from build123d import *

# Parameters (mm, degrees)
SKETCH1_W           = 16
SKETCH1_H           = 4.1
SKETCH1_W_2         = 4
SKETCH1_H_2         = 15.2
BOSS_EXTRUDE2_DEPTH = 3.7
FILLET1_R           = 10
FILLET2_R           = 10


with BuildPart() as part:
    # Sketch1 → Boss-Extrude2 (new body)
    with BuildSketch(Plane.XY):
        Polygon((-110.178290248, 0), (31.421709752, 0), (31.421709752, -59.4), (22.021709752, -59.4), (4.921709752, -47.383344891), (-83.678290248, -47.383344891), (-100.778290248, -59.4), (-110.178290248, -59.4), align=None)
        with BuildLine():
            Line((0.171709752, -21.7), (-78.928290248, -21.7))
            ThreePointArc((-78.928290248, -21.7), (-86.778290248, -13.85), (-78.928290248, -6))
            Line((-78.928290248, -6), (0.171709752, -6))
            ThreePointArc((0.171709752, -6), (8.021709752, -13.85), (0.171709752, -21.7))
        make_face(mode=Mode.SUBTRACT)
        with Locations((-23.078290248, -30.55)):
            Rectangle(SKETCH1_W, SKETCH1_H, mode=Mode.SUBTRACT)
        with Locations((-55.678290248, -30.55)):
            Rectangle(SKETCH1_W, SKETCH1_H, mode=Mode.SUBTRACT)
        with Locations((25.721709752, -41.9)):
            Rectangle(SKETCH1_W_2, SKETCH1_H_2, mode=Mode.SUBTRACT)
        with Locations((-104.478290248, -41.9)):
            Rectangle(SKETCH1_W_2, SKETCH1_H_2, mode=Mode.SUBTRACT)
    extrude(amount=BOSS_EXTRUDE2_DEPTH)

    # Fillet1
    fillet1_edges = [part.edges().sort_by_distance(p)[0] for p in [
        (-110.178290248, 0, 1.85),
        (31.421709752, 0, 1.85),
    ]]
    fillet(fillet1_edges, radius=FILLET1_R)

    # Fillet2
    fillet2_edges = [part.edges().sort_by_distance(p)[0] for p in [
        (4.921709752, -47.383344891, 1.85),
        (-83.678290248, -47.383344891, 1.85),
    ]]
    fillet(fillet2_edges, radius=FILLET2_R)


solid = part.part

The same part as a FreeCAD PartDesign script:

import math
import FreeCAD as App
import Part
import Sketcher


def edges_at(feature, points):
    """Names of the edges that pass closest to the given points."""
    edges = feature.Shape.Edges
    near = lambda p: min(range(len(edges)), key=lambda i: edges[i].distToShape(Part.Vertex(*p))[0])
    return sorted({f"Edge{near(p) + 1}" for p in points})

doc = App.newDocument("Part")
params = doc.addObject("Spreadsheet::Sheet", "Params")
for row, (alias, value) in enumerate([
    ("sketch1_width", "4 mm"),
    ("sketch1_width2", "16 mm"),
    ("sketch1_radius", "7.85 mm"),
    ("sketch1_width3", "141.6 mm"),
    ("sketch1_width4", "9.4 mm"),
    ("pad1_length", "3.7 mm"),
    ("fillet_radius", "10 mm"),
    ("fillet2_radius", "10 mm"),
], start=1):
    params.set(f"A{row}", alias)
    params.set(f"B{row}", "=" + value)
    params.setAlias(f"B{row}", alias)

body = doc.addObject("PartDesign::Body", "Body")

# Sketch on XY plane
sketch1 = body.newObject("Sketcher::SketchObject", "Sketch")
sketch1.AttachmentSupport = (doc.getObject("XY_Plane"), [""])
sketch1.MapMode = "FlatFace"
sketch1.addGeometry([
    Part.LineSegment(App.Vector(31.42171, 0, 0), App.Vector(-110.17829, 0, 0)),  # 0
    Part.LineSegment(App.Vector(-110.17829, 0, 0), App.Vector(-110.17829, -59.4, 0)),  # 1
    Part.LineSegment(App.Vector(-110.17829, -59.4, 0), App.Vector(-100.77829, -59.4, 0)),  # 2
    Part.LineSegment(App.Vector(-100.77829, -59.4, 0), App.Vector(-83.67829, -47.383345, 0)),  # 3
    Part.LineSegment(App.Vector(-83.67829, -47.383345, 0), App.Vector(4.92171, -47.383345, 0)),  # 4
    Part.LineSegment(App.Vector(4.92171, -47.383345, 0), App.Vector(22.02171, -59.4, 0)),  # 5
    Part.LineSegment(App.Vector(22.02171, -59.4, 0), App.Vector(31.42171, -59.4, 0)),  # 6
    Part.LineSegment(App.Vector(31.42171, -59.4, 0), App.Vector(31.42171, 0, 0)),  # 7
    Part.LineSegment(App.Vector(23.72171, -49.5, 0), App.Vector(23.72171, -34.3, 0)),  # 8
    Part.LineSegment(App.Vector(23.72171, -34.3, 0), App.Vector(27.72171, -34.3, 0)),  # 9
    Part.LineSegment(App.Vector(27.72171, -34.3, 0), App.Vector(27.72171, -49.5, 0)),  # 10
    Part.LineSegment(App.Vector(27.72171, -49.5, 0), App.Vector(23.72171, -49.5, 0)),  # 11
    Part.LineSegment(App.Vector(-31.07829, -32.6, 0), App.Vector(-31.07829, -28.5, 0)),  # 12
    Part.LineSegment(App.Vector(-31.07829, -28.5, 0), App.Vector(-15.07829, -28.5, 0)),  # 13
    Part.LineSegment(App.Vector(-15.07829, -28.5, 0), App.Vector(-15.07829, -32.6, 0)),  # 14
    Part.LineSegment(App.Vector(-15.07829, -32.6, 0), App.Vector(-31.07829, -32.6, 0)),  # 15
    Part.LineSegment(App.Vector(-106.47829, -49.5, 0), App.Vector(-106.47829, -34.3, 0)),  # 16
    Part.LineSegment(App.Vector(-106.47829, -34.3, 0), App.Vector(-102.47829, -34.3, 0)),  # 17
    Part.LineSegment(App.Vector(-102.47829, -34.3, 0), App.Vector(-102.47829, -49.5, 0)),  # 18
    Part.LineSegment(App.Vector(-102.47829, -49.5, 0), App.Vector(-106.47829, -49.5, 0)),  # 19
    Part.LineSegment(App.Vector(-63.67829, -32.6, 0), App.Vector(-63.67829, -28.5, 0)),  # 20
    Part.LineSegment(App.Vector(-63.67829, -28.5, 0), App.Vector(-47.67829, -28.5, 0)),  # 21
    Part.LineSegment(App.Vector(-47.67829, -28.5, 0), App.Vector(-47.67829, -32.6, 0)),  # 22
    Part.LineSegment(App.Vector(-47.67829, -32.6, 0), App.Vector(-63.67829, -32.6, 0)),  # 23
    Part.LineSegment(App.Vector(0.17171, -21.7, 0), App.Vector(-78.92829, -21.7, 0)),  # 24
    Part.ArcOfCircle(Part.Circle(App.Vector(-78.92829, -13.85, 0), App.Vector(0, 0, 1), 7.85), math.radians(90), math.radians(270)),  # 25
    Part.LineSegment(App.Vector(-78.92829, -6, 0), App.Vector(0.17171, -6, 0)),  # 26
    Part.ArcOfCircle(Part.Circle(App.Vector(0.17171, -13.85, 0), App.Vector(0, 0, 1), 7.85), math.radians(-90), math.radians(90)),  # 27
], False)
sketch1.addConstraint([
    Sketcher.Constraint("Coincident", 0, 2, 1, 1),
    Sketcher.Constraint("Coincident", 1, 2, 2, 1),
    Sketcher.Constraint("Coincident", 2, 2, 3, 1),
    Sketcher.Constraint("Coincident", 3, 2, 4, 1),
    Sketcher.Constraint("Coincident", 4, 2, 5, 1),
    Sketcher.Constraint("Coincident", 5, 2, 6, 1),
    Sketcher.Constraint("Coincident", 6, 2, 7, 1),
    Sketcher.Constraint("Coincident", 7, 2, 0, 1),
    Sketcher.Constraint("Coincident", 8, 2, 9, 1),
    Sketcher.Constraint("Coincident", 9, 2, 10, 1),
    Sketcher.Constraint("Coincident", 10, 2, 11, 1),
    Sketcher.Constraint("Coincident", 11, 2, 8, 1),
    Sketcher.Constraint("Coincident", 12, 2, 13, 1),
    Sketcher.Constraint("Coincident", 13, 2, 14, 1),
    Sketcher.Constraint("Coincident", 14, 2, 15, 1),
    Sketcher.Constraint("Coincident", 15, 2, 12, 1),
    Sketcher.Constraint("Coincident", 16, 2, 17, 1),
    Sketcher.Constraint("Coincident", 17, 2, 18, 1),
    Sketcher.Constraint("Coincident", 18, 2, 19, 1),
    Sketcher.Constraint("Coincident", 19, 2, 16, 1),
    Sketcher.Constraint("Coincident", 20, 2, 21, 1),
    Sketcher.Constraint("Coincident", 21, 2, 22, 1),
    Sketcher.Constraint("Coincident", 22, 2, 23, 1),
    Sketcher.Constraint("Coincident", 23, 2, 20, 1),
    Sketcher.Constraint("Tangent", 24, 2, 25, 2),
    Sketcher.Constraint("Tangent", 25, 1, 26, 1),
    Sketcher.Constraint("Tangent", 26, 2, 27, 2),
    Sketcher.Constraint("Tangent", 27, 1, 24, 1),
    Sketcher.Constraint("Horizontal", 0),
    Sketcher.Constraint("Vertical", 1),
    Sketcher.Constraint("Horizontal", 2),
    Sketcher.Constraint("Horizontal", 4),
    Sketcher.Constraint("Horizontal", 6),
    Sketcher.Constraint("Vertical", 7),
    Sketcher.Constraint("Vertical", 8),
    Sketcher.Constraint("Horizontal", 9),
    Sketcher.Constraint("Vertical", 10),
    Sketcher.Constraint("Horizontal", 11),
    Sketcher.Constraint("Vertical", 12),
    Sketcher.Constraint("Horizontal", 13),
    Sketcher.Constraint("Vertical", 14),
    Sketcher.Constraint("Horizontal", 15),
    Sketcher.Constraint("Vertical", 16),
    Sketcher.Constraint("Horizontal", 17),
    Sketcher.Constraint("Vertical", 18),
    Sketcher.Constraint("Horizontal", 19),
    Sketcher.Constraint("Vertical", 20),
    Sketcher.Constraint("Horizontal", 21),
    Sketcher.Constraint("Vertical", 22),
    Sketcher.Constraint("Horizontal", 23),
    Sketcher.Constraint("Horizontal", 24),
    Sketcher.Constraint("Horizontal", 26),
    Sketcher.Constraint("PointOnObject", 0, 2, -1),
    Sketcher.Constraint("Horizontal", 2, 2, 5, 2),
    Sketcher.Constraint("Horizontal", 9, 2, 16, 2),
    Sketcher.Constraint("Horizontal", 11, 2, 18, 2),
    Sketcher.Constraint("Horizontal", 13, 2, 20, 2),
    Sketcher.Constraint("Horizontal", 15, 2, 22, 2),
    Sketcher.Constraint("Equal", 2, 6),
    Sketcher.Constraint("Equal", 11, 17),
    Sketcher.Constraint("Equal", 15, 21),
    Sketcher.Constraint("Equal", 3, 5),
    Sketcher.Constraint("DistanceX", 9, 1, 9, 2, 4.0),
    Sketcher.Constraint("DistanceX", 13, 1, 13, 2, 16.0),
    Sketcher.Constraint("Radius", 25, 7.85),
    Sketcher.Constraint("DistanceX", 0, 2, 0, 1, 141.6),
    Sketcher.Constraint("DistanceX", 2, 1, 2, 2, 9.4),
    Sketcher.Constraint("DistanceX", 4, 1, 4, 2, 88.6),
    Sketcher.Constraint("DistanceX", 24, 2, 24, 1, 79.1),
    Sketcher.Constraint("DistanceY", 1, 2, 1, 1, 59.4),
    Sketcher.Constraint("DistanceY", 8, 1, 8, 2, 15.2),
    Sketcher.Constraint("DistanceY", 12, 1, 12, 2, 4.1),
    Sketcher.Constraint("DistanceY", 25, 1, -1, 1, 6.0),
    Sketcher.Constraint("DistanceX", 12, 2, 4, 2, 36.0),
    Sketcher.Constraint("DistanceX", 3, 2, 20, 2, 20.0),
    Sketcher.Constraint("Distance", 3, 20.9),
    Sketcher.Constraint("DistanceY", 8, 2, -1, 1, 34.3),
    Sketcher.Constraint("DistanceY", 12, 2, -1, 1, 28.5),
    Sketcher.Constraint("DistanceX", 4, 2, 8, 2, 18.8),
    Sketcher.Constraint("DistanceX", 1, 2, 16, 2, 3.7),
    Sketcher.Constraint("DistanceX", 0, 2, 25, 3, 31.25),
    Sketcher.Constraint("DistanceX", 25, 3, -1, 1, 78.92829),
])
sketch1.setExpression("Constraints[62]", "Params.sketch1_width")
sketch1.setExpression("Constraints[63]", "Params.sketch1_width2")
sketch1.setExpression("Constraints[64]", "Params.sketch1_radius")
sketch1.setExpression("Constraints[65]", "Params.sketch1_width3")
sketch1.setExpression("Constraints[66]", "Params.sketch1_width4")
pad1 = body.newObject("PartDesign::Pad", "Pad")
pad1.Profile = sketch1
pad1.setExpression("Length", "Params.pad1_length")
doc.recompute()

fillet = body.newObject("PartDesign::Fillet", "Fillet")
fillet.Base = (pad1, edges_at(pad1, [(-110.178, 0, 1.85), (31.422, 0, 1.85)]))
fillet.setExpression("Radius", "Params.fillet_radius")
doc.recompute()

fillet2 = body.newObject("PartDesign::Fillet", "Fillet001")
fillet2.Base = (fillet, edges_at(fillet, [(4.922, -47.383, 1.85), (-83.678, -47.383, 1.85)]))
fillet2.setExpression("Radius", "Params.fillet2_radius")

doc.recompute()
